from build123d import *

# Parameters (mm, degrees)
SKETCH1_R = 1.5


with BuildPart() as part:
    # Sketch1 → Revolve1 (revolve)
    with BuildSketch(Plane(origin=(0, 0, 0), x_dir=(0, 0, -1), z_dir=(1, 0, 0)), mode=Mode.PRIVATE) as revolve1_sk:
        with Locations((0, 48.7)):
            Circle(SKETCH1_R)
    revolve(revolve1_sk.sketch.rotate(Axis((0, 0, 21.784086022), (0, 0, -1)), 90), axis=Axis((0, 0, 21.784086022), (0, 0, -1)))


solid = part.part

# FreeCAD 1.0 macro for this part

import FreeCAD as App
import Part
import Sketcher

V = App.Vector
Q = App.Units.Quantity

doc = App.newDocument("Part")
body = doc.addObject("PartDesign::Body", "Body")

sketch1 = doc.addObject("Sketcher::SketchObject", "Sketch")
body.addObject(sketch1)
sketch1.AttachmentSupport = (doc.YZ_Plane, [""])
sketch1.MapMode = "FlatFace"
sketch1.addGeometry(Part.Circle(V(48.7, 0, 0), V(0, 0, 1), 1.5), False)
sketch1.addConstraint(Sketcher.Constraint("PointOnObject", 0, 3, -1))
sketch1.addConstraint(Sketcher.Constraint("Diameter", 0, Q("3 mm")))
sketch1.addConstraint(Sketcher.Constraint("DistanceX", -1, 1, 0, 3, Q("48.7 mm")))
revolution = doc.addObject("PartDesign::Revolution", "Revolution")
body.addObject(revolution)
revolution.Profile = sketch1
revolution.ReferenceAxis = (sketch1, ["V_Axis"])
revolution.Angle = 360

doc.recompute()
